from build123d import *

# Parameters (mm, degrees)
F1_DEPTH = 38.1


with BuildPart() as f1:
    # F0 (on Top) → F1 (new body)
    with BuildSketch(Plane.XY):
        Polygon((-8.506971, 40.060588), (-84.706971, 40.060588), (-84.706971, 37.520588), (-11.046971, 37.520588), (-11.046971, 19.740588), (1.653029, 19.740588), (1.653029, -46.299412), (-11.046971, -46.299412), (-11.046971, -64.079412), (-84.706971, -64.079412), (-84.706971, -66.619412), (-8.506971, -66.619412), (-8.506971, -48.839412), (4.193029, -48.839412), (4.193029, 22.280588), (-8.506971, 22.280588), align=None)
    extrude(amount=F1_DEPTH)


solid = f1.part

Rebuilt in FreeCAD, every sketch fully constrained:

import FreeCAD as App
import Part
import Sketcher
Q = App.Units.Quantity


def add_polygon(sketch, points):
    """Adds a closed chain of lines whose ends are joined by coincident constraints."""
    first, n = sketch.GeometryCount, len(points)
    for a, b in zip(points, points[1:] + points[:1]):
        sketch.addGeometry(Part.LineSegment(App.Vector(*a, 0), App.Vector(*b, 0)), False)
    for i in range(n):
        sketch.addConstraint(Sketcher.Constraint("Coincident", first + i, 2, first + (i + 1) % n, 1))

doc = App.newDocument("Part")
body = doc.addObject("PartDesign::Body", "Body")

# Sketch on XY plane
sketch1 = doc.addObject("Sketcher::SketchObject", "Sketch")
body.addObject(sketch1)
sketch1.AttachmentSupport = (doc.XY_Plane, [""])
sketch1.MapMode = "FlatFace"
add_polygon(sketch1, [(-8.5, 40.1), (-84.7, 40.1), (-84.7, 37.5), (-11, 37.5), (-11, 19.7), (1.7, 19.7), (1.7, -46.3), (-11, -46.3), (-11, -64.1), (-84.7, -64.1), (-84.7, -66.6), (-8.5, -66.6), (-8.5, -48.8), (4.2, -48.8), (4.2, 22.3), (-8.5, 22.3)])  # lines 0-15
sketch1.addConstraint([
    Sketcher.Constraint("Horizontal", 0),
    Sketcher.Constraint("Vertical", 1),
    Sketcher.Constraint("Horizontal", 2),
    Sketcher.Constraint("Vertical", 3),
    Sketcher.Constraint("Horizontal", 4),
    Sketcher.Constraint("Vertical", 5),
    Sketcher.Constraint("Horizontal", 6),
    Sketcher.Constraint("Vertical", 7),
    Sketcher.Constraint("Horizontal", 8),
    Sketcher.Constraint("Vertical", 9),
    Sketcher.Constraint("Horizontal", 10),
    Sketcher.Constraint("Vertical", 11),
    Sketcher.Constraint("Horizontal", 12),
    Sketcher.Constraint("Vertical", 13),
    Sketcher.Constraint("Horizontal", 14),
    Sketcher.Constraint("Vertical", 15),
    Sketcher.Constraint("Vertical", 3, 2, 6, 2),
    Sketcher.Constraint("Vertical", 1, 2, 8, 2),
    Sketcher.Constraint("Vertical", 11, 2, 14, 2),
    Sketcher.Constraint("Equal", 6, 12),
    Sketcher.Constraint("Equal", 3, 7),
    Sketcher.Constraint("Equal", 1, 9),
    Sketcher.Constraint("Equal", 7, 11),
    Sketcher.Constraint("Equal", 11, 15),
    Sketcher.Constraint("DistanceX", 0, 2, 0, 1, Q("3 in")),
    Sketcher.Constraint("DistanceX", 2, 1, 2, 2, Q("2.9 in")),
    Sketcher.Constraint("DistanceX", 4, 1, 4, 2, Q("0.5 in")),
    Sketcher.Constraint("DistanceY", 1, 2, 1, 1, Q("0.1 in")),
    Sketcher.Constraint("DistanceY", 3, 2, 3, 1, Q("0.7 in")),
    Sketcher.Constraint("DistanceY", 5, 2, 5, 1, Q("2.6 in")),
    Sketcher.Constraint("DistanceX", 0, 2, -1, 1, 84.706971),
    Sketcher.Constraint("DistanceY", -1, 1, 0, 2, 40.060588),
])
pad1 = doc.addObject("PartDesign::Pad", "Pad")
body.addObject(pad1)
pad1.Profile = sketch1
pad1.Length = Q("1.5 in")

doc.recompute()
